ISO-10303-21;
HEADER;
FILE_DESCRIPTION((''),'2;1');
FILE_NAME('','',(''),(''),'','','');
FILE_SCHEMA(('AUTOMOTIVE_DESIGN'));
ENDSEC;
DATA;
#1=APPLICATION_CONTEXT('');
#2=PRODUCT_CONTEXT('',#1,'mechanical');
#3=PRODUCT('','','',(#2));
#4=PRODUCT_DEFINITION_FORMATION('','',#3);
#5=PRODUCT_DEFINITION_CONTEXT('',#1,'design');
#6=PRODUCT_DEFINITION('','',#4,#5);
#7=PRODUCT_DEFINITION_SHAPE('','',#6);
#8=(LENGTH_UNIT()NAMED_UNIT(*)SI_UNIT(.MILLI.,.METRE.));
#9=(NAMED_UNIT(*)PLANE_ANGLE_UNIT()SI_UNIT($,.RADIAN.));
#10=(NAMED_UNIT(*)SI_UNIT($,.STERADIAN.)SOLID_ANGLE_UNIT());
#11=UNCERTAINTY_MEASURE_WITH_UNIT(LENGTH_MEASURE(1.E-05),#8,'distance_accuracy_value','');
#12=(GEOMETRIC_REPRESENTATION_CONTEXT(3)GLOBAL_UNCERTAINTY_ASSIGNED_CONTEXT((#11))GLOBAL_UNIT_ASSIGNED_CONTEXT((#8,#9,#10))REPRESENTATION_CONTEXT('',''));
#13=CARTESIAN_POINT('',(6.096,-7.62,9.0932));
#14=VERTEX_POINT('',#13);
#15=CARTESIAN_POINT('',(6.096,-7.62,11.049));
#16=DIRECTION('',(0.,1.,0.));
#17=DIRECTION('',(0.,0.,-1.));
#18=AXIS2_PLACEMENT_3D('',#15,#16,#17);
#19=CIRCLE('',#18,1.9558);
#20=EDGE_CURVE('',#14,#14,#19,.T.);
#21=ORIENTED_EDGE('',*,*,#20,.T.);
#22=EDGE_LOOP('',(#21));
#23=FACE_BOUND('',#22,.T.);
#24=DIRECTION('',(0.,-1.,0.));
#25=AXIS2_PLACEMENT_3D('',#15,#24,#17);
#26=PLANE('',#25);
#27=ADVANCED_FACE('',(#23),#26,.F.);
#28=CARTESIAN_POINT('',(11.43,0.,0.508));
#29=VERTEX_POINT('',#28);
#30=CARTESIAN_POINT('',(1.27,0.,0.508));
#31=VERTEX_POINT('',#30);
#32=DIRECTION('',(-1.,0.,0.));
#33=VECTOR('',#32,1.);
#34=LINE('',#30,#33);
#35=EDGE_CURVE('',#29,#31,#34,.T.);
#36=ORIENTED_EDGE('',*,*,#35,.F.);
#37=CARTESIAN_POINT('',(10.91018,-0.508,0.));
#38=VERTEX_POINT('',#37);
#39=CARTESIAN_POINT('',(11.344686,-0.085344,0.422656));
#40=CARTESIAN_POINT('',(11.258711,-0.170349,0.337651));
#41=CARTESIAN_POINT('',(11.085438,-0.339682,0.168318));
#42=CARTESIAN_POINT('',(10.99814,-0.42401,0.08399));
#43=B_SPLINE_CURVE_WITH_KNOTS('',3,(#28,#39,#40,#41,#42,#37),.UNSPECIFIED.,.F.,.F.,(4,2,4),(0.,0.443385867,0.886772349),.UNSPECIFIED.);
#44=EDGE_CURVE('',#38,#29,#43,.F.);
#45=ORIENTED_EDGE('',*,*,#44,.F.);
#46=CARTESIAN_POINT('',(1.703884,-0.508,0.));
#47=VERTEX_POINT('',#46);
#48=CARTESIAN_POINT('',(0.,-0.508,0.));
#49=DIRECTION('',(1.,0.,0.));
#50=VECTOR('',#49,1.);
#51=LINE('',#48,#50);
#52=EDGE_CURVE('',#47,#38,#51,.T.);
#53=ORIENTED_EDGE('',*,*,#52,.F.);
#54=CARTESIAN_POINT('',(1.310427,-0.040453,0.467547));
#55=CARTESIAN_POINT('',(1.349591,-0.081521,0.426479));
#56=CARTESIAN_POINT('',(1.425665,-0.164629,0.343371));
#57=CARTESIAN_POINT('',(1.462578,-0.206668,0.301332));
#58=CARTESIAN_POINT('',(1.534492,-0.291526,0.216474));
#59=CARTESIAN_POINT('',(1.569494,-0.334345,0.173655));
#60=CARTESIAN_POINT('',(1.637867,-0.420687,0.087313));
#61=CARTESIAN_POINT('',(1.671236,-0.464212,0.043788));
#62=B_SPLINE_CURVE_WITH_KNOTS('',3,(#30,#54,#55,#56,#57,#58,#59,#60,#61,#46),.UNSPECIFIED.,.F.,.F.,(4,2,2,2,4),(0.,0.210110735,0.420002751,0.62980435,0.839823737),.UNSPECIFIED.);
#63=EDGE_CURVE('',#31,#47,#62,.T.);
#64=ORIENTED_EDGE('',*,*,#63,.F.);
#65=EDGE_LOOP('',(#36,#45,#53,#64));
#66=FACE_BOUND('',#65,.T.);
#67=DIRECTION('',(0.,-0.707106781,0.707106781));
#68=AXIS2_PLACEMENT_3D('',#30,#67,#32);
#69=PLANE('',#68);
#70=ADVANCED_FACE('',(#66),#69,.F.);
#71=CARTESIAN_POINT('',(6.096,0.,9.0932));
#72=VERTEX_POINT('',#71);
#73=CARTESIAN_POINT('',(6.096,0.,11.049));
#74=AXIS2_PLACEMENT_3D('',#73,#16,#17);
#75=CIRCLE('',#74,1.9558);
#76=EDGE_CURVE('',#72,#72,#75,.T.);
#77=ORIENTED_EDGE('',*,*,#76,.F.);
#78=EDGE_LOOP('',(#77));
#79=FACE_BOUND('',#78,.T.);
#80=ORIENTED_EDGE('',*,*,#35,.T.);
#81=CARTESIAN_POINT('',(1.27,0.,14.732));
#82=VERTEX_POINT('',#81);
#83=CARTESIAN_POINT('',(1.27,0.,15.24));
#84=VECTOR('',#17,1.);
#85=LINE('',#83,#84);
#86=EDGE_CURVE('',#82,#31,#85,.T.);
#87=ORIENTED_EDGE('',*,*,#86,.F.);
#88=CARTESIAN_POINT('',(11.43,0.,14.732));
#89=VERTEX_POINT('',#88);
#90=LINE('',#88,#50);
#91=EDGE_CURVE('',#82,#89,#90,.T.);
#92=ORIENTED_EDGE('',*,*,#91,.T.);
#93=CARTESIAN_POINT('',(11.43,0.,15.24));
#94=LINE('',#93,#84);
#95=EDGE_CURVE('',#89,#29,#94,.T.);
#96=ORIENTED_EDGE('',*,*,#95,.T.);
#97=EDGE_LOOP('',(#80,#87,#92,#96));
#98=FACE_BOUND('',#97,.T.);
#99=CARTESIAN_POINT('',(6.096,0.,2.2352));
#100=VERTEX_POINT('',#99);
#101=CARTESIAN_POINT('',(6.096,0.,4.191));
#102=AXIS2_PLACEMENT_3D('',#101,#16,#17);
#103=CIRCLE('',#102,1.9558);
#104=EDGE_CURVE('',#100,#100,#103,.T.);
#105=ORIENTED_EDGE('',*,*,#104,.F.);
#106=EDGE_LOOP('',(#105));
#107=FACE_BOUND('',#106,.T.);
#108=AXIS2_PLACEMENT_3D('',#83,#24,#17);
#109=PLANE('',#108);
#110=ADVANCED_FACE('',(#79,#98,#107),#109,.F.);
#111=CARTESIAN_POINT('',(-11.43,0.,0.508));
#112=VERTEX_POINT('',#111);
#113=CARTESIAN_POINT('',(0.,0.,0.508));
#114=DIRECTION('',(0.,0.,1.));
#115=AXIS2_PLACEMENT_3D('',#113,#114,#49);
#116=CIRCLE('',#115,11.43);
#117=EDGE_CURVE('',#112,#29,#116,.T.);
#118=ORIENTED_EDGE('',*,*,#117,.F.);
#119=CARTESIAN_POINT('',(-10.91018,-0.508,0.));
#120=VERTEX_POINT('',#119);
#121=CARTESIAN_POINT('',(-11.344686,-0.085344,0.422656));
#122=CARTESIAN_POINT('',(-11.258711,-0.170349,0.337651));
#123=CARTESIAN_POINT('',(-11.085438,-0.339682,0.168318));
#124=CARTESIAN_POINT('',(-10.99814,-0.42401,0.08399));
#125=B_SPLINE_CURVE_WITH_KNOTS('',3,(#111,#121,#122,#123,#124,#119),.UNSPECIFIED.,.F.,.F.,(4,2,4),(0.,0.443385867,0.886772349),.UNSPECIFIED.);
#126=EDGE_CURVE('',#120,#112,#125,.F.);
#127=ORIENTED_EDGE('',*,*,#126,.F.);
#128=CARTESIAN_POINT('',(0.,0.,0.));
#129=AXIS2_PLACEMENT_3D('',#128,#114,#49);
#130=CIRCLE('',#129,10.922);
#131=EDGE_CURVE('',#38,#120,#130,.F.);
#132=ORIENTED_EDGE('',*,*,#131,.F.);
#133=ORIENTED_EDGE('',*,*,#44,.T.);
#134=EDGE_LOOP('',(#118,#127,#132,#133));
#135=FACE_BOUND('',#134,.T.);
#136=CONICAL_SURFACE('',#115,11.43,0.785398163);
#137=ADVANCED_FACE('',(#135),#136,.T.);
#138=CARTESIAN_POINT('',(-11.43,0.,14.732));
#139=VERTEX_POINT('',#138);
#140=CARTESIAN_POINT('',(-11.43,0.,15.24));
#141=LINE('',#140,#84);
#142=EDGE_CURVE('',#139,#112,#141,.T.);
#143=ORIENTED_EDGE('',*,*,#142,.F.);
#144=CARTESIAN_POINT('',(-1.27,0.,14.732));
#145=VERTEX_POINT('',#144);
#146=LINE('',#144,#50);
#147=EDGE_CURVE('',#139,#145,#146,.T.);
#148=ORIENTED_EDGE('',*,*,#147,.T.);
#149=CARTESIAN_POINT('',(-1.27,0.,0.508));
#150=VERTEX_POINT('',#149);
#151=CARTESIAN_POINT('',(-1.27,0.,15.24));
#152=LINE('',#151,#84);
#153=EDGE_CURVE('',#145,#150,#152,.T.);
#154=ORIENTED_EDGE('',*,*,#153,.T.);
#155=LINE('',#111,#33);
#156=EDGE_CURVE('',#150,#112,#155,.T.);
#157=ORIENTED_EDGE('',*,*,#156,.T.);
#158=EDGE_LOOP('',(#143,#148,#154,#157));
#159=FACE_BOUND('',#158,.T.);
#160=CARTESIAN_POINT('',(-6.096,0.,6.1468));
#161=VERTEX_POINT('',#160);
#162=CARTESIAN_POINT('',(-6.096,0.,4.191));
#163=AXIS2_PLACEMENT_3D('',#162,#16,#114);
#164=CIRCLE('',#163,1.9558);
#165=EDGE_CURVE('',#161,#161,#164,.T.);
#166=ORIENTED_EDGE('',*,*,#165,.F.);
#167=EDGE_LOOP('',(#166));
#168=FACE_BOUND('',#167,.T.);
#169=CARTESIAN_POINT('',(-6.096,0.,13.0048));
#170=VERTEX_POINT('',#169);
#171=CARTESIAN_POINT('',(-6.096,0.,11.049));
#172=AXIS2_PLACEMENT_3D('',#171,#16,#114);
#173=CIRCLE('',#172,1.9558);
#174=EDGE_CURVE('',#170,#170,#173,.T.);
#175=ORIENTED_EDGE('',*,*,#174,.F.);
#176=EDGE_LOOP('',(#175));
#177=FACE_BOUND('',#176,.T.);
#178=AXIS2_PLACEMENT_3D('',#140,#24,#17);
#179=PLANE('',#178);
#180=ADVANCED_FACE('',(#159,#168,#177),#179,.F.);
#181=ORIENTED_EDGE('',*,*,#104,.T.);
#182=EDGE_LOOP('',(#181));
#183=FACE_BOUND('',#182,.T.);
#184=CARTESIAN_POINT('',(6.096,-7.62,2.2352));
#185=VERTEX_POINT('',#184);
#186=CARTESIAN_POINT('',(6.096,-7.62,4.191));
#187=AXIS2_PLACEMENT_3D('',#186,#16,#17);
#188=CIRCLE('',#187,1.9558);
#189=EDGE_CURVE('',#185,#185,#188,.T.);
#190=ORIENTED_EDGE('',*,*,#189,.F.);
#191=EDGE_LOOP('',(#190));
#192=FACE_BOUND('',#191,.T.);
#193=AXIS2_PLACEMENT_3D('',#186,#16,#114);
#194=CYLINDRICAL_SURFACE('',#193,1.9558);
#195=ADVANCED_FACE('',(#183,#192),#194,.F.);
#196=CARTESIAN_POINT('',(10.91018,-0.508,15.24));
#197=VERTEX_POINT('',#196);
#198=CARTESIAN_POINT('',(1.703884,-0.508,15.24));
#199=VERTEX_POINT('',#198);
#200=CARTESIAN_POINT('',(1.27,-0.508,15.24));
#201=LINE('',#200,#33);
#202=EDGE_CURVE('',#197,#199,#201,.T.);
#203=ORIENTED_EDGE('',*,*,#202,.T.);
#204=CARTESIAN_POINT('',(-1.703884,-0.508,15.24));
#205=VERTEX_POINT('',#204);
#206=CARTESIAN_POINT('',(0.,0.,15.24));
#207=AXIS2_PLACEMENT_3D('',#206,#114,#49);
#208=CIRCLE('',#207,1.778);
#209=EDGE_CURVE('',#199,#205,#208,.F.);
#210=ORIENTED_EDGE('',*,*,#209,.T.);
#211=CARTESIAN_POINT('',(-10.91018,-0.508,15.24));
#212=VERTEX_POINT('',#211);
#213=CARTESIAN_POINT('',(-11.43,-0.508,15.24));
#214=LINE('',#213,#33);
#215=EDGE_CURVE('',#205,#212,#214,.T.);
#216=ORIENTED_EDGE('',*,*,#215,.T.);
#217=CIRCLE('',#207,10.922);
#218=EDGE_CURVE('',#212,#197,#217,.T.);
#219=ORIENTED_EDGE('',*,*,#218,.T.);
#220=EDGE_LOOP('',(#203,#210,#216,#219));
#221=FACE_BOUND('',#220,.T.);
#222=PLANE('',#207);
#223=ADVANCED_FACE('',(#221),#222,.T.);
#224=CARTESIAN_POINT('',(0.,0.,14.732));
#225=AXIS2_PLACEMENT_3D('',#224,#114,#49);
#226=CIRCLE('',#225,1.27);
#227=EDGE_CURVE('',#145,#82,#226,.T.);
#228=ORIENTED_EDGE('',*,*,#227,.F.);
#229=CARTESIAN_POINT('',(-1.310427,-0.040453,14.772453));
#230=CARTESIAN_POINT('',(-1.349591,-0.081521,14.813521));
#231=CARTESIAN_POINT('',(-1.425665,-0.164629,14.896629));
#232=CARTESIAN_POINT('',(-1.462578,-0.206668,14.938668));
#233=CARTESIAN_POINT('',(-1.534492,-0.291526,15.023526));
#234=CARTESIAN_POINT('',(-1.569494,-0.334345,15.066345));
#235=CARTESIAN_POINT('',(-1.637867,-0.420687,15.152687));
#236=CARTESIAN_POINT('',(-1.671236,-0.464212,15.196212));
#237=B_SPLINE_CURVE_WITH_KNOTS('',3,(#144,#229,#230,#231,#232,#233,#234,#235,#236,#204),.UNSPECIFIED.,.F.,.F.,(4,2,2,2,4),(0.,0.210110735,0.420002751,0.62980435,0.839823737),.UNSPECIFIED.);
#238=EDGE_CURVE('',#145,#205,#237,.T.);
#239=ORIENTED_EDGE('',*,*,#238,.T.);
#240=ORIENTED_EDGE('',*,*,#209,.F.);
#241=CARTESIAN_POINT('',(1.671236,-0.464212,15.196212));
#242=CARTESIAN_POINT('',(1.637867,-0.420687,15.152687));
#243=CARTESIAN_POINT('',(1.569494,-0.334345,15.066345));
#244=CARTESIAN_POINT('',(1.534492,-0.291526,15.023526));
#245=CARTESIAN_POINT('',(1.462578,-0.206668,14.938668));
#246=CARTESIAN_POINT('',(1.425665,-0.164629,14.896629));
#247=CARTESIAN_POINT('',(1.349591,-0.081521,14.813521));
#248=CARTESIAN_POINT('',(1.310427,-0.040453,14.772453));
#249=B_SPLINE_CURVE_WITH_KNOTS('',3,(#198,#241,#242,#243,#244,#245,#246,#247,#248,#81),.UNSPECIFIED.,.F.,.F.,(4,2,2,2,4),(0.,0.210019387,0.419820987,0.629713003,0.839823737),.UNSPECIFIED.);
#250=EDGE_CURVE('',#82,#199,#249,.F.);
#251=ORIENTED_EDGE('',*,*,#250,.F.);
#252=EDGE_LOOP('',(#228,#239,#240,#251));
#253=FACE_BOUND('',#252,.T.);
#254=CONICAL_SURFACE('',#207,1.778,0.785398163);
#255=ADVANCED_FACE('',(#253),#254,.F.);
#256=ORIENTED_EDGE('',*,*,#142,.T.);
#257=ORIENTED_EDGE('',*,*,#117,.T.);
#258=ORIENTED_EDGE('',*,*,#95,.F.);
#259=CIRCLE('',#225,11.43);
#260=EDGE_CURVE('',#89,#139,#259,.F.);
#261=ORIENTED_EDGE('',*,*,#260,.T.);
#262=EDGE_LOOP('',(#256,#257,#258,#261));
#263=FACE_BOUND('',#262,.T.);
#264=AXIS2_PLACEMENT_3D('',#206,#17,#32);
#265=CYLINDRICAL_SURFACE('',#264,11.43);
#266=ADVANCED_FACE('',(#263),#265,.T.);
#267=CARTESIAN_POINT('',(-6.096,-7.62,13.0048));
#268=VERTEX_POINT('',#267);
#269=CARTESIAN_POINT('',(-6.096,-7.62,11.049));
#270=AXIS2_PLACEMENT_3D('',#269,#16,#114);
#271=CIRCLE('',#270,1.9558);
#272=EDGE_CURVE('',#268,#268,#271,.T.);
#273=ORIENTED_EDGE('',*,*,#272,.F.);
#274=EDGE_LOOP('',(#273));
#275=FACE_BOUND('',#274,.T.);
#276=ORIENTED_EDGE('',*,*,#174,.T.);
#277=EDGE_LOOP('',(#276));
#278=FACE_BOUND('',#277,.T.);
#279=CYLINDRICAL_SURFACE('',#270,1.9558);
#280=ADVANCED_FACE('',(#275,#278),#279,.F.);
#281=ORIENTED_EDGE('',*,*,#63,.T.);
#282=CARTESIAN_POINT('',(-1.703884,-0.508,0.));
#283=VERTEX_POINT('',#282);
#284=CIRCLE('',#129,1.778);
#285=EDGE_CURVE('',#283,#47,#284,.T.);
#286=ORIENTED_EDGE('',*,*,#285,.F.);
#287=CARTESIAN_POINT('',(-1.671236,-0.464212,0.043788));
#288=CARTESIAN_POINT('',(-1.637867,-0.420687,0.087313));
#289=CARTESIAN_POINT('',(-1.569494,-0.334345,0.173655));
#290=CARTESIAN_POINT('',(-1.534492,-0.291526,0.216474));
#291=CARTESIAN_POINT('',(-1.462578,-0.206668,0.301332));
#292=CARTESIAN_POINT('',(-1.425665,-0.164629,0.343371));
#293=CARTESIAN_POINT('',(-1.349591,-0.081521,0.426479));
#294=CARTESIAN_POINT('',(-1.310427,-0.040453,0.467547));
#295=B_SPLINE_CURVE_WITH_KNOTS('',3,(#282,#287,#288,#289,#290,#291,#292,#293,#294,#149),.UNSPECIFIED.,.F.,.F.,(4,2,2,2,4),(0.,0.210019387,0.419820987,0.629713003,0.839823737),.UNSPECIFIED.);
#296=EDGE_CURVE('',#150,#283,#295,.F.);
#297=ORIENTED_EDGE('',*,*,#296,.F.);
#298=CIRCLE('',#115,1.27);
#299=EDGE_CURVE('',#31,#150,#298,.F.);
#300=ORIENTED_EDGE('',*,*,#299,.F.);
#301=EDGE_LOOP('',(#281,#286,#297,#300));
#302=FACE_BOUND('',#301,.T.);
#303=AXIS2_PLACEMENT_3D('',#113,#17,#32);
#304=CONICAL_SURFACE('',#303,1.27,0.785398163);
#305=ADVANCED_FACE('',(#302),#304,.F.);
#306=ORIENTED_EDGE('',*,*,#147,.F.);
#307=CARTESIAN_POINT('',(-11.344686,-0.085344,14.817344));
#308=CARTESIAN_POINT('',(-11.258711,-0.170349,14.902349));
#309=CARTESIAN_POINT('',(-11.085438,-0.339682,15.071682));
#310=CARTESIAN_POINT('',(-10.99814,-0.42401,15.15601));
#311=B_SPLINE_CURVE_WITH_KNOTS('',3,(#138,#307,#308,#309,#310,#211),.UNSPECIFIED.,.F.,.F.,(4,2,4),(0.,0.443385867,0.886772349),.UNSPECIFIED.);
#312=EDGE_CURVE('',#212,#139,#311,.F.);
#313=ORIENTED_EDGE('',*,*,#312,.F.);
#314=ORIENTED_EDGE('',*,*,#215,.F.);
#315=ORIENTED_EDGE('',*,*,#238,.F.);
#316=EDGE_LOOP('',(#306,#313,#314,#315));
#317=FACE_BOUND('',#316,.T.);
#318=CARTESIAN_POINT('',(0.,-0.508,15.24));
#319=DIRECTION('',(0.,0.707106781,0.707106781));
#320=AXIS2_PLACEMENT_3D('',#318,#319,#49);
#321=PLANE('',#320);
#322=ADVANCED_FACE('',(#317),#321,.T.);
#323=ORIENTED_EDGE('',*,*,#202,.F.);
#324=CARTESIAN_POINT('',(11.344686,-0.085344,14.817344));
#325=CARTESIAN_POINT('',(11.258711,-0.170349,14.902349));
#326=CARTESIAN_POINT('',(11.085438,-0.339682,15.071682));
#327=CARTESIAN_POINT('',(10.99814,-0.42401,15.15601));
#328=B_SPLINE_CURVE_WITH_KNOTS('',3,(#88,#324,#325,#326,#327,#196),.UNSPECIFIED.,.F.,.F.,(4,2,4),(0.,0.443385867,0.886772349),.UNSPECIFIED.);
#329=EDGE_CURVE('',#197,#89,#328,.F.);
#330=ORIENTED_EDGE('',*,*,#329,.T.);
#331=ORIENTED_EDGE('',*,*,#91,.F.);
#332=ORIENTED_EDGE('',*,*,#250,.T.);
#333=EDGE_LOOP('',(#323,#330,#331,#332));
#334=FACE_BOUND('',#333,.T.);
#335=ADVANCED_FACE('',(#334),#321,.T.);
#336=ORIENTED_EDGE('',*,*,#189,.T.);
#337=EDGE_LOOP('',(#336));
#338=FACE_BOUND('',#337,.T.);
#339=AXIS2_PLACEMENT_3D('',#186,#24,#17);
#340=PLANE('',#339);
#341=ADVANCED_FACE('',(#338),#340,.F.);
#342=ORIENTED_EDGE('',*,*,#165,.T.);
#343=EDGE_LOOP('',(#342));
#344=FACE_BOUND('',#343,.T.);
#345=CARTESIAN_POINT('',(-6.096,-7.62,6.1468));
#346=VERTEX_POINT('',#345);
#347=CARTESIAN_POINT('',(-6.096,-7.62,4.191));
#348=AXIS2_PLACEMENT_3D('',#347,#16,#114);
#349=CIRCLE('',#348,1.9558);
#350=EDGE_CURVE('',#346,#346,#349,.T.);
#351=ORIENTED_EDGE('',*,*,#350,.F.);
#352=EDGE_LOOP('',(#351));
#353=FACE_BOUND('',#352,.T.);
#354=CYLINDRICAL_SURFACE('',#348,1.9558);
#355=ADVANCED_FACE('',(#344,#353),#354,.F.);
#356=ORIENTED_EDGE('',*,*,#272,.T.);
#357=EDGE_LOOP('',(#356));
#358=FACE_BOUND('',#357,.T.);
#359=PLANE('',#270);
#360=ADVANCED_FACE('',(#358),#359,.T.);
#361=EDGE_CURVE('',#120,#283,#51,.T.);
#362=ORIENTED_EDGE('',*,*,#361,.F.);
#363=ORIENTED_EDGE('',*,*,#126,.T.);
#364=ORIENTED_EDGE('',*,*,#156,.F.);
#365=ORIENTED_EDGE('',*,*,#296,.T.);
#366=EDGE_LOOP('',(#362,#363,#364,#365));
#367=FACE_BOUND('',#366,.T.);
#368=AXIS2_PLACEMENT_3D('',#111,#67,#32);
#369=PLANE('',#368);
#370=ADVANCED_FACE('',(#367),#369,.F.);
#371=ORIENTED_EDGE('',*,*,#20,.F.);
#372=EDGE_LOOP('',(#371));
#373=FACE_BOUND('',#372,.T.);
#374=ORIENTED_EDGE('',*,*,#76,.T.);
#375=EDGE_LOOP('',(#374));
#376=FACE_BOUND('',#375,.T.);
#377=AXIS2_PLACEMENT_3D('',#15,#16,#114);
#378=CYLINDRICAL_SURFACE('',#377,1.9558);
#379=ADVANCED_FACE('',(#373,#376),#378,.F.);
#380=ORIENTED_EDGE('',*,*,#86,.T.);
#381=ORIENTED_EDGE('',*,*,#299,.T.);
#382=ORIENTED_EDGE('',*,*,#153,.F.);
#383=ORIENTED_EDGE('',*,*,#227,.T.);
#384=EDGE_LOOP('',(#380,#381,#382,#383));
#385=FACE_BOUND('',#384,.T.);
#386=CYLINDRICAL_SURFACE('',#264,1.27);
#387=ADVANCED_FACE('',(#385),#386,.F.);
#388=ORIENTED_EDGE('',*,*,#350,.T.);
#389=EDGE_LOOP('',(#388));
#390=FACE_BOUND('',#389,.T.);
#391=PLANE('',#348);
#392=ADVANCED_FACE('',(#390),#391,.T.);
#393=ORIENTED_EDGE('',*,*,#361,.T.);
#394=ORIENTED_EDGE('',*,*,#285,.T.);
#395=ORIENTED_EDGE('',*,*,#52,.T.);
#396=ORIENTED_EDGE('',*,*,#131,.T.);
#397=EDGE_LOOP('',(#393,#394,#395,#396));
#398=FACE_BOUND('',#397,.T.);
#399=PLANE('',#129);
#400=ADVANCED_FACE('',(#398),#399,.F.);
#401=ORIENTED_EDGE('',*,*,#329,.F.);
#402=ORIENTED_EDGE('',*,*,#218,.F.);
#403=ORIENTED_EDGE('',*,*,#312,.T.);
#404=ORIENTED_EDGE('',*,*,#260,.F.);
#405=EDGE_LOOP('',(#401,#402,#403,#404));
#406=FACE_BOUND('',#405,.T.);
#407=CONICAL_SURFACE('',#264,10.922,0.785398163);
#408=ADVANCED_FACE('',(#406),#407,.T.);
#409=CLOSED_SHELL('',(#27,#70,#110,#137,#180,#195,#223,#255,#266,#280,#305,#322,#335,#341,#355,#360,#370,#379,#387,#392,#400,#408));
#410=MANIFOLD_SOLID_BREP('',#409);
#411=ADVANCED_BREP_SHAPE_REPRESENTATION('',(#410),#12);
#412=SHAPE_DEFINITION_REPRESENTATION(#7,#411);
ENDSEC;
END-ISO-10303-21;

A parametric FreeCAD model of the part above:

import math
import FreeCAD as App
import Part
import Sketcher

V = App.Vector
Q = App.Units.Quantity


def edges_at(feature, points):
    """Names of the edges that pass closest to the given points."""
    edges = feature.Shape.Edges
    near = lambda p: min(range(len(edges)), key=lambda i: edges[i].distToShape(Part.Vertex(*p))[0])
    return sorted({f"Edge{near(p) + 1}" for p in points})

doc = App.newDocument("Part")
body = doc.addObject("PartDesign::Body", "Body")

# Sketch on XY plane
sketch1 = body.newObject("Sketcher::SketchObject", "Sketch")
sketch1.AttachmentSupport = (doc.getObject("XY_Plane"), [""])
sketch1.MapMode = "FlatFace"
sketch1.addGeometry([
    Part.LineSegment(V(-1.3, 0, 0), V(-11.4, 0, 0)),
    Part.ArcOfCircle(Part.Circle(V(0, 0, 0), V(0, 0, 1), 11.4), math.radians(180), math.radians(360)),
    Part.LineSegment(V(11.4, 0, 0), V(1.3, 0, 0)),
    Part.ArcOfCircle(Part.Circle(V(0, 0, 0), V(0, 0, 1), 1.3), math.radians(180), math.radians(360)),
], False)
sketch1.addConstraint([
    Sketcher.Constraint("Coincident", 0, 2, 1, 1),
    Sketcher.Constraint("Coincident", 1, 2, 2, 1),
    Sketcher.Constraint("Coincident", 2, 2, 3, 2),
    Sketcher.Constraint("Coincident", 3, 1, 0, 1),
    Sketcher.Constraint("Horizontal", 0),
    Sketcher.Constraint("Horizontal", 2),
    Sketcher.Constraint("Coincident", 1, 3, -1, 1),
    Sketcher.Constraint("Coincident", 3, 3, -1, 1),
    Sketcher.Constraint("PointOnObject", 0, 2, -1),
    Sketcher.Constraint("PointOnObject", 1, 2, -1),
    Sketcher.Constraint("Radius", 1, Q("0.45 in")),
    Sketcher.Constraint("Radius", 3, Q("0.05 in")),
])
pad1 = body.newObject("PartDesign::Pad", "Pad")
pad1.Profile = sketch1
pad1.Length = Q("0.6 in")
doc.recompute()

chamfer = body.newObject("PartDesign::Chamfer", "Chamfer")
chamfer.Base = (pad1, edges_at(pad1, [
    (6.35, 0, 0),
    (0, -11.43, 0),
    (-6.35, 0, 0),
    (0, -1.27, 0),
]))
chamfer.Size = Q("0.02 in")
doc.recompute()

chamfer2 = body.newObject("PartDesign::Chamfer", "Chamfer001")
chamfer2.Base = (chamfer, edges_at(chamfer, [
    (0, -11.43, 15.24),
    (6.35, 0, 15.24),
    (0, -1.27, 15.24),
    (-6.35, 0, 15.24),
]))
chamfer2.Size = Q("0.02 in")

# Sketch on XZ plane
sketch2 = body.newObject("Sketcher::SketchObject", "Sketch001")
sketch2.AttachmentSupport = (doc.getObject("XZ_Plane"), [""])
sketch2.MapMode = "FlatFace"
sketch2.addGeometry([
    Part.Circle(V(-6.1, 4.2, 0), V(0, 0, 1), 2),
    Part.Circle(V(-6.1, 11, 0), V(0, 0, 1), 2),
    Part.Circle(V(6.1, 11, 0), V(0, 0, 1), 2),
    Part.Circle(V(6.1, 4.2, 0), V(0, 0, 1), 2),
], False)
sketch2.addConstraint([
    Sketcher.Constraint("Equal", 0, 1),
    Sketcher.Constraint("Equal", 1, 2),
    Sketcher.Constraint("Equal", 2, 3),
    Sketcher.Constraint("Symmetric", 1, 3, 2, 3, -2),
    Sketcher.Constraint("Symmetric", 0, 3, 3, 3, -2),
    Sketcher.Constraint("Vertical", 0, 3, 1, 3),
    Sketcher.Constraint("Diameter", 0, Q("0.154 in")),
    Sketcher.Constraint("DistanceX", 0, 3, -1, 1, Q("0.24 in")),
    Sketcher.Constraint("DistanceY", 0, 3, 1, 3, Q("0.27 in")),
    Sketcher.Constraint("DistanceY", -1, 1, 0, 3, Q("0.165 in")),
])
pocket1 = body.newObject("PartDesign::Pocket", "Pocket")
pocket1.Profile = sketch2
pocket1.Length = Q("0.3 in")
pocket1.Reversed = True

doc.recompute()
